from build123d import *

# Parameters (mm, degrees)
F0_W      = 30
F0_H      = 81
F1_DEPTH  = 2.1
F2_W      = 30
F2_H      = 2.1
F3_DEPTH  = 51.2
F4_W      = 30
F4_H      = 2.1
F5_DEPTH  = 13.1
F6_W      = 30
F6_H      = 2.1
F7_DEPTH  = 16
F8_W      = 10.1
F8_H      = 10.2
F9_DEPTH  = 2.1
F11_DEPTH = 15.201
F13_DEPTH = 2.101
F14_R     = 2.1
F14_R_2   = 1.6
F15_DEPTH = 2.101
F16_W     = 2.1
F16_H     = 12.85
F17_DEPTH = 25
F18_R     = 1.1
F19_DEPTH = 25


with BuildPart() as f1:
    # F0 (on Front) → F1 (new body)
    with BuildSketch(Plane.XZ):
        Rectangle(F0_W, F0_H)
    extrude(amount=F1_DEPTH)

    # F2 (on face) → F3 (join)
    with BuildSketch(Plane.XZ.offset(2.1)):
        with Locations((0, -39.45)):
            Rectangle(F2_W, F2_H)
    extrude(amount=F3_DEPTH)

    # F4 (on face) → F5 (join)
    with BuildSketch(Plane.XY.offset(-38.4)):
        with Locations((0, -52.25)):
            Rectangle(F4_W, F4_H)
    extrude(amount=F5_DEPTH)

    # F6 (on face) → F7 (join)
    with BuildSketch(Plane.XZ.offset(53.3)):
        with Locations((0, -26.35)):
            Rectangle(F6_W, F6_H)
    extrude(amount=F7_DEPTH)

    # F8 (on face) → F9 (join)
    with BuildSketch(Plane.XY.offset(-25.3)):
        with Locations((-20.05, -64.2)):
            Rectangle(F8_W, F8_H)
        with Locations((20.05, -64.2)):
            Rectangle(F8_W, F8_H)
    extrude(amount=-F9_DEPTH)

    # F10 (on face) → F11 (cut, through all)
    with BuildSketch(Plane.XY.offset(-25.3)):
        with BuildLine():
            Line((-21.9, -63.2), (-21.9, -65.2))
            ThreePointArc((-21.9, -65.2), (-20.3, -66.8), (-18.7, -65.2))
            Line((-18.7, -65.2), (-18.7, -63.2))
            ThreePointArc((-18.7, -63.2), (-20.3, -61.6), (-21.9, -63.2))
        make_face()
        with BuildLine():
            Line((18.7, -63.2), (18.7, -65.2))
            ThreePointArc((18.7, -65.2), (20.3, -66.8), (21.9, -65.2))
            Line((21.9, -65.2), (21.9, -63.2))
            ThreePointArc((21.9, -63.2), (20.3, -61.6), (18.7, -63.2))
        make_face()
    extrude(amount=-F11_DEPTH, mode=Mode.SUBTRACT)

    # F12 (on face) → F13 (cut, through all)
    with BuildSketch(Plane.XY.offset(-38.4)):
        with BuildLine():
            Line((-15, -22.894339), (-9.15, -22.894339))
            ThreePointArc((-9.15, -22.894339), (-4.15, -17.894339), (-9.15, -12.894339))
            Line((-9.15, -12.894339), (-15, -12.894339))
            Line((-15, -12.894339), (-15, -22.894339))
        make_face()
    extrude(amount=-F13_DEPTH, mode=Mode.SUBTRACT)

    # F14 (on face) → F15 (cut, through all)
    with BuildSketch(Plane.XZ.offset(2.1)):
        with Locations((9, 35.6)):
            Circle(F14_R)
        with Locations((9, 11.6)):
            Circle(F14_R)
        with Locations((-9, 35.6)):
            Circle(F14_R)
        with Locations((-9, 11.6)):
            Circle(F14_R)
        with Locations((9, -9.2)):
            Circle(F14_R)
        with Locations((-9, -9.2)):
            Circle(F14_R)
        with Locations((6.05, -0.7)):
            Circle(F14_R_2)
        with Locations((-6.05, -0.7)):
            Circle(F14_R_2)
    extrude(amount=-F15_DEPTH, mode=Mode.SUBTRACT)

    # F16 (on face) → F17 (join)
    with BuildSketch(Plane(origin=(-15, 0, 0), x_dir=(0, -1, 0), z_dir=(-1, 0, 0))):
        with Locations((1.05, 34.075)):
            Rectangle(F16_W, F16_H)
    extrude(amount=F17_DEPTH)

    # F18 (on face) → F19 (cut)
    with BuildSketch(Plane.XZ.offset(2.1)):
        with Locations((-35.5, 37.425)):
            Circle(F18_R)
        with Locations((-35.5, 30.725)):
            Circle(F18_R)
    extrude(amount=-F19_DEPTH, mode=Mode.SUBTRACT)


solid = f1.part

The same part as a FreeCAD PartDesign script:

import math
import FreeCAD as App
import Part
import Sketcher
Q = App.Units.Quantity


def add_polygon(sketch, points):
    """Adds a closed chain of lines whose ends are joined by coincident constraints."""
    first, n = sketch.GeometryCount, len(points)
    for a, b in zip(points, points[1:] + points[:1]):
        sketch.addGeometry(Part.LineSegment(App.Vector(*a, 0), App.Vector(*b, 0)), False)
    for i in range(n):
        sketch.addConstraint(Sketcher.Constraint("Coincident", first + i, 2, first + (i + 1) % n, 1))

doc = App.newDocument("Part")
body = doc.addObject("PartDesign::Body", "Body")

sketch1 = body.newObject("Sketcher::SketchObject", "Sketch")
sketch1.AttachmentSupport = (doc.getObject("XZ_Plane"), [""])
sketch1.MapMode = "FlatFace"
add_polygon(sketch1, [(-15, 40), (-15, -40), (15, -40), (15, 40)])
sketch1.addConstraint([
    Sketcher.Constraint("Vertical", 0),
    Sketcher.Constraint("Horizontal", 1),
    Sketcher.Constraint("Vertical", 2),
    Sketcher.Constraint("Horizontal", 3),
    Sketcher.Constraint("Symmetric", 0, 2, 2, 2, -1, 1),
    Sketcher.Constraint("DistanceX", 1, 1, 1, 2, Q("30 mm")),
    Sketcher.Constraint("DistanceY", 0, 2, 0, 1, Q("81 mm")),
])
pad1 = body.newObject("PartDesign::Pad", "Pad")
pad1.Profile = sketch1
pad1.Length = 2.1

sketch2 = body.newObject("Sketcher::SketchObject", "Sketch001")
sketch2.AttachmentSupport = (doc.getObject("XZ_Plane"), [""])
sketch2.MapMode = "FlatFace"
sketch2.AttachmentOffset = App.Placement(App.Vector(0, 0, 2.1), App.Rotation())
add_polygon(sketch2, [(-15, -38.4), (-15, -40.5), (15, -40.5), (15, -38.4)])
sketch2.addConstraint([
    Sketcher.Constraint("Vertical", 0),
    Sketcher.Constraint("Horizontal", 1),
    Sketcher.Constraint("Vertical", 2),
    Sketcher.Constraint("Horizontal", 3),
    Sketcher.Constraint("DistanceX", 1, 1, 1, 2, Q("30 mm")),
    Sketcher.Constraint("DistanceY", 0, 2, 0, 1, Q("2.1 mm")),
    Sketcher.Constraint("DistanceX", 0, 2, -1, 1, Q("15 mm")),
    Sketcher.Constraint("DistanceY", 0, 2, -1, 1, Q("40.5 mm")),
])
pad2 = body.newObject("PartDesign::Pad", "Pad001")
pad2.Profile = sketch2
pad2.Length = 51.2

sketch3 = body.newObject("Sketcher::SketchObject", "Sketch002")
sketch3.AttachmentSupport = (doc.getObject("XY_Plane"), [""])
sketch3.MapMode = "FlatFace"
sketch3.AttachmentOffset = App.Placement(App.Vector(0, 0, -38.4), App.Rotation())
add_polygon(sketch3, [(-15, -51.2), (-15, -53.3), (15, -53.3), (15, -51.2)])
sketch3.addConstraint([
    Sketcher.Constraint("Vertical", 0),
    Sketcher.Constraint("Horizontal", 1),
    Sketcher.Constraint("Vertical", 2),
    Sketcher.Constraint("Horizontal", 3),
    Sketcher.Constraint("DistanceX", 1, 1, 1, 2, Q("30 mm")),
    Sketcher.Constraint("DistanceY", 0, 2, 0, 1, Q("2.1 mm")),
    Sketcher.Constraint("DistanceX", 0, 2, -1, 1, Q("15 mm")),
    Sketcher.Constraint("DistanceY", 0, 2, -1, 1, Q("53.3 mm")),
])
pad3 = body.newObject("PartDesign::Pad", "Pad002")
pad3.Profile = sketch3
pad3.Length = 13.1

sketch4 = body.newObject("Sketcher::SketchObject", "Sketch003")
sketch4.AttachmentSupport = (doc.getObject("XZ_Plane"), [""])
sketch4.MapMode = "FlatFace"
sketch4.AttachmentOffset = App.Placement(App.Vector(0, 0, 53.3), App.Rotation())
add_polygon(sketch4, [(-15, -25.3), (-15, -27.4), (15, -27.4), (15, -25.3)])
sketch4.addConstraint([
    Sketcher.Constraint("Vertical", 0),
    Sketcher.Constraint("Horizontal", 1),
    Sketcher.Constraint("Vertical", 2),
    Sketcher.Constraint("Horizontal", 3),
    Sketcher.Constraint("DistanceX", 1, 1, 1, 2, Q("30 mm")),
    Sketcher.Constraint("DistanceY", 0, 2, 0, 1, Q("2.1 mm")),
    Sketcher.Constraint("DistanceX", 0, 2, -1, 1, Q("15 mm")),
    Sketcher.Constraint("DistanceY", 0, 2, -1, 1, Q("27.4 mm")),
])
pad4 = body.newObject("PartDesign::Pad", "Pad003")
pad4.Profile = sketch4
pad4.Length = 16

sketch5 = body.newObject("Sketcher::SketchObject", "Sketch004")
sketch5.AttachmentSupport = (doc.getObject("XY_Plane"), [""])
sketch5.MapMode = "FlatFace"
sketch5.AttachmentOffset = App.Placement(App.Vector(0, 0, -25.3), App.Rotation())
add_polygon(sketch5, [(-25, -59), (-25, -69), (-15, -69), (-15, -59)])
add_polygon(sketch5, [(15, -59), (15, -69), (25, -69), (25, -59)])
sketch5.addConstraint([
    Sketcher.Constraint("Vertical", 0),
    Sketcher.Constraint("Horizontal", 1),
    Sketcher.Constraint("Vertical", 2),
    Sketcher.Constraint("Horizontal", 3),
    Sketcher.Constraint("Vertical", 4),
    Sketcher.Constraint("Horizontal", 5),
    Sketcher.Constraint("Vertical", 6),
    Sketcher.Constraint("Horizontal", 7),
    Sketcher.Constraint("Symmetric", 1, 2, 4, 2, -2),
    Sketcher.Constraint("Symmetric", 3, 2, 6, 2, -2),
    Sketcher.Constraint("DistanceX", 1, 1, 1, 2, Q("10.1 mm")),
    Sketcher.Constraint("DistanceY", 0, 2, 0, 1, Q("10.2 mm")),
    Sketcher.Constraint("DistanceX", 1, 2, -1, 1, Q("15 mm")),
    Sketcher.Constraint("DistanceY", 0, 2, -1, 1, Q("69.3 mm")),
])
pad5 = body.newObject("PartDesign::Pad", "Pad004")
pad5.Profile = sketch5
pad5.Length = 2.1
pad5.Reversed = True

sketch6 = body.newObject("Sketcher::SketchObject", "Sketch005")
sketch6.AttachmentSupport = (doc.getObject("XY_Plane"), [""])
sketch6.MapMode = "FlatFace"
sketch6.AttachmentOffset = App.Placement(App.Vector(0, 0, -25.3), App.Rotation())
sketch6.addGeometry([
    Part.LineSegment(App.Vector(-21.9, -63.2, 0), App.Vector(-21.9, -65.2, 0)),
    Part.ArcOfCircle(Part.Circle(App.Vector(-20.3, -65.2, 0), App.Vector(0, 0, 1), 1.6), math.radians(180), math.radians(360)),
    Part.LineSegment(App.Vector(-18.7, -65.2, 0), App.Vector(-18.7, -63.2, 0)),
    Part.ArcOfCircle(Part.Circle(App.Vector(-20.3, -63.2, 0), App.Vector(0, 0, 1), 1.6), math.radians(0), math.radians(180)),
    Part.LineSegment(App.Vector(18.7, -63.2, 0), App.Vector(18.7, -65.2, 0)),
    Part.ArcOfCircle(Part.Circle(App.Vector(20.3, -65.2, 0), App.Vector(0, 0, 1), 1.6), math.radians(180), math.radians(360)),
    Part.LineSegment(App.Vector(21.9, -65.2, 0), App.Vector(21.9, -63.2, 0)),
    Part.ArcOfCircle(Part.Circle(App.Vector(20.3, -63.2, 0), App.Vector(0, 0, 1), 1.6), math.radians(0), math.radians(180)),
], False)
sketch6.addConstraint([
    Sketcher.Constraint("Tangent", 0, 2, 1, 1),
    Sketcher.Constraint("Tangent", 1, 2, 2, 1),
    Sketcher.Constraint("Tangent", 2, 2, 3, 1),
    Sketcher.Constraint("Tangent", 3, 2, 0, 1),
    Sketcher.Constraint("Tangent", 4, 2, 5, 1),
    Sketcher.Constraint("Tangent", 5, 2, 6, 1),
    Sketcher.Constraint("Tangent", 6, 2, 7, 1),
    Sketcher.Constraint("Tangent", 7, 2, 4, 1),
    Sketcher.Constraint("Vertical", 0),
    Sketcher.Constraint("Vertical", 2),
    Sketcher.Constraint("Vertical", 4),
    Sketcher.Constraint("Vertical", 6),
    Sketcher.Constraint("Equal", 3, 5),
    Sketcher.Constraint("Symmetric", 1, 3, 5, 3, -2),
    Sketcher.Constraint("Horizontal", 3, 3, 7, 3),
    Sketcher.Constraint("Radius", 1, Q("1.6 mm")),
    Sketcher.Constraint("DistanceY", 0, 2, 0, 1, Q("2 mm")),
    Sketcher.Constraint("DistanceX", 1, 2, 5, 3, Q("39 mm")),
    Sketcher.Constraint("DistanceY", 1, 3, -1, 1, Q("65.2 mm")),
])
pocket1 = body.newObject("PartDesign::Pocket", "Pocket")
pocket1.Profile = sketch6
pocket1.Type = "ThroughAll"

sketch7 = body.newObject("Sketcher::SketchObject", "Sketch006")
sketch7.AttachmentSupport = (doc.getObject("XY_Plane"), [""])
sketch7.MapMode = "FlatFace"
sketch7.AttachmentOffset = App.Placement(App.Vector(0, 0, -38.4), App.Rotation())
sketch7.addGeometry([
    Part.LineSegment(App.Vector(-15, -23, 0), App.Vector(-9, -23, 0)),
    Part.ArcOfCircle(Part.Circle(App.Vector(-9, -18, 0), App.Vector(0, 0, 1), 5), math.radians(-90), math.radians(90)),
    Part.LineSegment(App.Vector(-9, -13, 0), App.Vector(-15, -13, 0)),
    Part.LineSegment(App.Vector(-15, -13, 0), App.Vector(-15, -23, 0)),
], False)
sketch7.addConstraint([
    Sketcher.Constraint("Tangent", 0, 2, 1, 1),
    Sketcher.Constraint("Tangent", 1, 2, 2, 1),
    Sketcher.Constraint("Coincident", 2, 2, 3, 1),
    Sketcher.Constraint("Coincident", 3, 2, 0, 1),
    Sketcher.Constraint("Horizontal", 0),
    Sketcher.Constraint("Horizontal", 2),
    Sketcher.Constraint("Vertical", 3),
    Sketcher.Constraint("Radius", 1, Q("5 mm")),
    Sketcher.Constraint("DistanceX", 2, 2, -1, 1, Q("15 mm")),
    Sketcher.Constraint("DistanceX", 0, 1, 0, 2, Q("5.85 mm")),
    Sketcher.Constraint("DistanceY", 1, 3, -1, 1, Q("17.894339 mm")),
])
pocket2 = body.newObject("PartDesign::Pocket", "Pocket001")
pocket2.Profile = sketch7
pocket2.Type = "ThroughAll"

sketch8 = body.newObject("Sketcher::SketchObject", "Sketch007")
sketch8.AttachmentSupport = (doc.getObject("XZ_Plane"), [""])
sketch8.MapMode = "FlatFace"
sketch8.AttachmentOffset = App.Placement(App.Vector(0, 0, 2.1), App.Rotation())
sketch8.addGeometry([
    Part.Circle(App.Vector(9, 35.6, 0), App.Vector(0, 0, 1), 2.1),
    Part.Circle(App.Vector(9, 11.6, 0), App.Vector(0, 0, 1), 2.1),
    Part.Circle(App.Vector(-9, 35.6, 0), App.Vector(0, 0, 1), 2.1),
    Part.Circle(App.Vector(-9, 11.6, 0), App.Vector(0, 0, 1), 2.1),
    Part.Circle(App.Vector(9, -9.2, 0), App.Vector(0, 0, 1), 2.1),
    Part.Circle(App.Vector(-9, -9.2, 0), App.Vector(0, 0, 1), 2.1),
    Part.Circle(App.Vector(6, -0.7, 0), App.Vector(0, 0, 1), 1.6),
    Part.Circle(App.Vector(-6, -0.7, 0), App.Vector(0, 0, 1), 1.6),
], False)
sketch8.addConstraint([
    Sketcher.Constraint("Equal", 0, 1),
    Sketcher.Constraint("Equal", 1, 2),
    Sketcher.Constraint("Equal", 2, 3),
    Sketcher.Constraint("Equal", 3, 4),
    Sketcher.Constraint("Equal", 4, 5),
    Sketcher.Constraint("Equal", 6, 7),
    Sketcher.Constraint("Symmetric", 0, 3, 2, 3, -2),
    Sketcher.Constraint("Symmetric", 1, 3, 3, 3, -2),
    Sketcher.Constraint("Symmetric", 4, 3, 5, 3, -2),
    Sketcher.Constraint("Symmetric", 6, 3, 7, 3, -2),
    Sketcher.Constraint("Vertical", 0, 3, 1, 3),
    Sketcher.Constraint("Vertical", 1, 3, 4, 3),
    Sketcher.Constraint("Diameter", 0, Q("4.2 mm")),
    Sketcher.Constraint("Diameter", 6, Q("3.2 mm")),
    Sketcher.Constraint("DistanceX", -1, 1, 0, 3, Q("9 mm")),
    Sketcher.Constraint("DistanceY", 1, 3, 0, 3, Q("24 mm")),
    Sketcher.Constraint("DistanceY", -1, 1, 0, 3, Q("35.6 mm")),
    Sketcher.Constraint("DistanceY", 4, 3, -1, 1, Q("9.2 mm")),
    Sketcher.Constraint("DistanceY", 6, 3, -1, 1, Q("0.7 mm")),
    Sketcher.Constraint("DistanceX", 7, 3, 6, 3, Q("12.1 mm")),
])
pocket3 = body.newObject("PartDesign::Pocket", "Pocket002")
pocket3.Profile = sketch8
pocket3.Type = "ThroughAll"

sketch9 = body.newObject("Sketcher::SketchObject", "Sketch008")
sketch9.AttachmentSupport = (doc.getObject("YZ_Plane"), [""])
sketch9.MapMode = "FlatFace"
sketch9.AttachmentOffset = App.Placement(App.Vector(0, 0, -15), App.Rotation())
add_polygon(sketch9, [(0, 40.5), (0, 27.6), (-2.1, 27.6), (-2.1, 40.5)])
sketch9.addConstraint([
    Sketcher.Constraint("Vertical", 0),
    Sketcher.Constraint("Horizontal", 1),
    Sketcher.Constraint("Vertical", 2),
    Sketcher.Constraint("Horizontal", 3),
    Sketcher.Constraint("PointOnObject", 0, 2, -2),
    Sketcher.Constraint("DistanceX", 1, 2, 1, 1, Q("2.1 mm")),
    Sketcher.Constraint("DistanceY", 0, 2, 0, 1, Q("12.85 mm")),
    Sketcher.Constraint("DistanceY", -1, 1, 2, 2, Q("40.5 mm")),
])
pad6 = body.newObject("PartDesign::Pad", "Pad005")
pad6.Profile = sketch9
pad6.Length = 25
pad6.Reversed = True

sketch10 = body.newObject("Sketcher::SketchObject", "Sketch009")
sketch10.AttachmentSupport = (doc.getObject("XZ_Plane"), [""])
sketch10.MapMode = "FlatFace"
sketch10.AttachmentOffset = App.Placement(App.Vector(0, 0, 2.1), App.Rotation())
sketch10.addGeometry([
    Part.Circle(App.Vector(-35.5, 37.4, 0), App.Vector(0, 0, 1), 1.1),
    Part.Circle(App.Vector(-35.5, 30.7, 0), App.Vector(0, 0, 1), 1.1),
], False)
sketch10.addConstraint([
    Sketcher.Constraint("Equal", 0, 1),
    Sketcher.Constraint("Vertical", 0, 3, 1, 3),
    Sketcher.Constraint("Diameter", 0, Q("2.2 mm")),
    Sketcher.Constraint("DistanceX", 0, 3, -1, 1, Q("35.5 mm")),
    Sketcher.Constraint("DistanceY", 1, 3, 0, 3, Q("6.7 mm")),
    Sketcher.Constraint("DistanceY", -1, 1, 0, 3, Q("37.425 mm")),
])
pocket4 = body.newObject("PartDesign::Pocket", "Pocket003")
pocket4.Profile = sketch10
pocket4.Length = 25

doc.recompute()
